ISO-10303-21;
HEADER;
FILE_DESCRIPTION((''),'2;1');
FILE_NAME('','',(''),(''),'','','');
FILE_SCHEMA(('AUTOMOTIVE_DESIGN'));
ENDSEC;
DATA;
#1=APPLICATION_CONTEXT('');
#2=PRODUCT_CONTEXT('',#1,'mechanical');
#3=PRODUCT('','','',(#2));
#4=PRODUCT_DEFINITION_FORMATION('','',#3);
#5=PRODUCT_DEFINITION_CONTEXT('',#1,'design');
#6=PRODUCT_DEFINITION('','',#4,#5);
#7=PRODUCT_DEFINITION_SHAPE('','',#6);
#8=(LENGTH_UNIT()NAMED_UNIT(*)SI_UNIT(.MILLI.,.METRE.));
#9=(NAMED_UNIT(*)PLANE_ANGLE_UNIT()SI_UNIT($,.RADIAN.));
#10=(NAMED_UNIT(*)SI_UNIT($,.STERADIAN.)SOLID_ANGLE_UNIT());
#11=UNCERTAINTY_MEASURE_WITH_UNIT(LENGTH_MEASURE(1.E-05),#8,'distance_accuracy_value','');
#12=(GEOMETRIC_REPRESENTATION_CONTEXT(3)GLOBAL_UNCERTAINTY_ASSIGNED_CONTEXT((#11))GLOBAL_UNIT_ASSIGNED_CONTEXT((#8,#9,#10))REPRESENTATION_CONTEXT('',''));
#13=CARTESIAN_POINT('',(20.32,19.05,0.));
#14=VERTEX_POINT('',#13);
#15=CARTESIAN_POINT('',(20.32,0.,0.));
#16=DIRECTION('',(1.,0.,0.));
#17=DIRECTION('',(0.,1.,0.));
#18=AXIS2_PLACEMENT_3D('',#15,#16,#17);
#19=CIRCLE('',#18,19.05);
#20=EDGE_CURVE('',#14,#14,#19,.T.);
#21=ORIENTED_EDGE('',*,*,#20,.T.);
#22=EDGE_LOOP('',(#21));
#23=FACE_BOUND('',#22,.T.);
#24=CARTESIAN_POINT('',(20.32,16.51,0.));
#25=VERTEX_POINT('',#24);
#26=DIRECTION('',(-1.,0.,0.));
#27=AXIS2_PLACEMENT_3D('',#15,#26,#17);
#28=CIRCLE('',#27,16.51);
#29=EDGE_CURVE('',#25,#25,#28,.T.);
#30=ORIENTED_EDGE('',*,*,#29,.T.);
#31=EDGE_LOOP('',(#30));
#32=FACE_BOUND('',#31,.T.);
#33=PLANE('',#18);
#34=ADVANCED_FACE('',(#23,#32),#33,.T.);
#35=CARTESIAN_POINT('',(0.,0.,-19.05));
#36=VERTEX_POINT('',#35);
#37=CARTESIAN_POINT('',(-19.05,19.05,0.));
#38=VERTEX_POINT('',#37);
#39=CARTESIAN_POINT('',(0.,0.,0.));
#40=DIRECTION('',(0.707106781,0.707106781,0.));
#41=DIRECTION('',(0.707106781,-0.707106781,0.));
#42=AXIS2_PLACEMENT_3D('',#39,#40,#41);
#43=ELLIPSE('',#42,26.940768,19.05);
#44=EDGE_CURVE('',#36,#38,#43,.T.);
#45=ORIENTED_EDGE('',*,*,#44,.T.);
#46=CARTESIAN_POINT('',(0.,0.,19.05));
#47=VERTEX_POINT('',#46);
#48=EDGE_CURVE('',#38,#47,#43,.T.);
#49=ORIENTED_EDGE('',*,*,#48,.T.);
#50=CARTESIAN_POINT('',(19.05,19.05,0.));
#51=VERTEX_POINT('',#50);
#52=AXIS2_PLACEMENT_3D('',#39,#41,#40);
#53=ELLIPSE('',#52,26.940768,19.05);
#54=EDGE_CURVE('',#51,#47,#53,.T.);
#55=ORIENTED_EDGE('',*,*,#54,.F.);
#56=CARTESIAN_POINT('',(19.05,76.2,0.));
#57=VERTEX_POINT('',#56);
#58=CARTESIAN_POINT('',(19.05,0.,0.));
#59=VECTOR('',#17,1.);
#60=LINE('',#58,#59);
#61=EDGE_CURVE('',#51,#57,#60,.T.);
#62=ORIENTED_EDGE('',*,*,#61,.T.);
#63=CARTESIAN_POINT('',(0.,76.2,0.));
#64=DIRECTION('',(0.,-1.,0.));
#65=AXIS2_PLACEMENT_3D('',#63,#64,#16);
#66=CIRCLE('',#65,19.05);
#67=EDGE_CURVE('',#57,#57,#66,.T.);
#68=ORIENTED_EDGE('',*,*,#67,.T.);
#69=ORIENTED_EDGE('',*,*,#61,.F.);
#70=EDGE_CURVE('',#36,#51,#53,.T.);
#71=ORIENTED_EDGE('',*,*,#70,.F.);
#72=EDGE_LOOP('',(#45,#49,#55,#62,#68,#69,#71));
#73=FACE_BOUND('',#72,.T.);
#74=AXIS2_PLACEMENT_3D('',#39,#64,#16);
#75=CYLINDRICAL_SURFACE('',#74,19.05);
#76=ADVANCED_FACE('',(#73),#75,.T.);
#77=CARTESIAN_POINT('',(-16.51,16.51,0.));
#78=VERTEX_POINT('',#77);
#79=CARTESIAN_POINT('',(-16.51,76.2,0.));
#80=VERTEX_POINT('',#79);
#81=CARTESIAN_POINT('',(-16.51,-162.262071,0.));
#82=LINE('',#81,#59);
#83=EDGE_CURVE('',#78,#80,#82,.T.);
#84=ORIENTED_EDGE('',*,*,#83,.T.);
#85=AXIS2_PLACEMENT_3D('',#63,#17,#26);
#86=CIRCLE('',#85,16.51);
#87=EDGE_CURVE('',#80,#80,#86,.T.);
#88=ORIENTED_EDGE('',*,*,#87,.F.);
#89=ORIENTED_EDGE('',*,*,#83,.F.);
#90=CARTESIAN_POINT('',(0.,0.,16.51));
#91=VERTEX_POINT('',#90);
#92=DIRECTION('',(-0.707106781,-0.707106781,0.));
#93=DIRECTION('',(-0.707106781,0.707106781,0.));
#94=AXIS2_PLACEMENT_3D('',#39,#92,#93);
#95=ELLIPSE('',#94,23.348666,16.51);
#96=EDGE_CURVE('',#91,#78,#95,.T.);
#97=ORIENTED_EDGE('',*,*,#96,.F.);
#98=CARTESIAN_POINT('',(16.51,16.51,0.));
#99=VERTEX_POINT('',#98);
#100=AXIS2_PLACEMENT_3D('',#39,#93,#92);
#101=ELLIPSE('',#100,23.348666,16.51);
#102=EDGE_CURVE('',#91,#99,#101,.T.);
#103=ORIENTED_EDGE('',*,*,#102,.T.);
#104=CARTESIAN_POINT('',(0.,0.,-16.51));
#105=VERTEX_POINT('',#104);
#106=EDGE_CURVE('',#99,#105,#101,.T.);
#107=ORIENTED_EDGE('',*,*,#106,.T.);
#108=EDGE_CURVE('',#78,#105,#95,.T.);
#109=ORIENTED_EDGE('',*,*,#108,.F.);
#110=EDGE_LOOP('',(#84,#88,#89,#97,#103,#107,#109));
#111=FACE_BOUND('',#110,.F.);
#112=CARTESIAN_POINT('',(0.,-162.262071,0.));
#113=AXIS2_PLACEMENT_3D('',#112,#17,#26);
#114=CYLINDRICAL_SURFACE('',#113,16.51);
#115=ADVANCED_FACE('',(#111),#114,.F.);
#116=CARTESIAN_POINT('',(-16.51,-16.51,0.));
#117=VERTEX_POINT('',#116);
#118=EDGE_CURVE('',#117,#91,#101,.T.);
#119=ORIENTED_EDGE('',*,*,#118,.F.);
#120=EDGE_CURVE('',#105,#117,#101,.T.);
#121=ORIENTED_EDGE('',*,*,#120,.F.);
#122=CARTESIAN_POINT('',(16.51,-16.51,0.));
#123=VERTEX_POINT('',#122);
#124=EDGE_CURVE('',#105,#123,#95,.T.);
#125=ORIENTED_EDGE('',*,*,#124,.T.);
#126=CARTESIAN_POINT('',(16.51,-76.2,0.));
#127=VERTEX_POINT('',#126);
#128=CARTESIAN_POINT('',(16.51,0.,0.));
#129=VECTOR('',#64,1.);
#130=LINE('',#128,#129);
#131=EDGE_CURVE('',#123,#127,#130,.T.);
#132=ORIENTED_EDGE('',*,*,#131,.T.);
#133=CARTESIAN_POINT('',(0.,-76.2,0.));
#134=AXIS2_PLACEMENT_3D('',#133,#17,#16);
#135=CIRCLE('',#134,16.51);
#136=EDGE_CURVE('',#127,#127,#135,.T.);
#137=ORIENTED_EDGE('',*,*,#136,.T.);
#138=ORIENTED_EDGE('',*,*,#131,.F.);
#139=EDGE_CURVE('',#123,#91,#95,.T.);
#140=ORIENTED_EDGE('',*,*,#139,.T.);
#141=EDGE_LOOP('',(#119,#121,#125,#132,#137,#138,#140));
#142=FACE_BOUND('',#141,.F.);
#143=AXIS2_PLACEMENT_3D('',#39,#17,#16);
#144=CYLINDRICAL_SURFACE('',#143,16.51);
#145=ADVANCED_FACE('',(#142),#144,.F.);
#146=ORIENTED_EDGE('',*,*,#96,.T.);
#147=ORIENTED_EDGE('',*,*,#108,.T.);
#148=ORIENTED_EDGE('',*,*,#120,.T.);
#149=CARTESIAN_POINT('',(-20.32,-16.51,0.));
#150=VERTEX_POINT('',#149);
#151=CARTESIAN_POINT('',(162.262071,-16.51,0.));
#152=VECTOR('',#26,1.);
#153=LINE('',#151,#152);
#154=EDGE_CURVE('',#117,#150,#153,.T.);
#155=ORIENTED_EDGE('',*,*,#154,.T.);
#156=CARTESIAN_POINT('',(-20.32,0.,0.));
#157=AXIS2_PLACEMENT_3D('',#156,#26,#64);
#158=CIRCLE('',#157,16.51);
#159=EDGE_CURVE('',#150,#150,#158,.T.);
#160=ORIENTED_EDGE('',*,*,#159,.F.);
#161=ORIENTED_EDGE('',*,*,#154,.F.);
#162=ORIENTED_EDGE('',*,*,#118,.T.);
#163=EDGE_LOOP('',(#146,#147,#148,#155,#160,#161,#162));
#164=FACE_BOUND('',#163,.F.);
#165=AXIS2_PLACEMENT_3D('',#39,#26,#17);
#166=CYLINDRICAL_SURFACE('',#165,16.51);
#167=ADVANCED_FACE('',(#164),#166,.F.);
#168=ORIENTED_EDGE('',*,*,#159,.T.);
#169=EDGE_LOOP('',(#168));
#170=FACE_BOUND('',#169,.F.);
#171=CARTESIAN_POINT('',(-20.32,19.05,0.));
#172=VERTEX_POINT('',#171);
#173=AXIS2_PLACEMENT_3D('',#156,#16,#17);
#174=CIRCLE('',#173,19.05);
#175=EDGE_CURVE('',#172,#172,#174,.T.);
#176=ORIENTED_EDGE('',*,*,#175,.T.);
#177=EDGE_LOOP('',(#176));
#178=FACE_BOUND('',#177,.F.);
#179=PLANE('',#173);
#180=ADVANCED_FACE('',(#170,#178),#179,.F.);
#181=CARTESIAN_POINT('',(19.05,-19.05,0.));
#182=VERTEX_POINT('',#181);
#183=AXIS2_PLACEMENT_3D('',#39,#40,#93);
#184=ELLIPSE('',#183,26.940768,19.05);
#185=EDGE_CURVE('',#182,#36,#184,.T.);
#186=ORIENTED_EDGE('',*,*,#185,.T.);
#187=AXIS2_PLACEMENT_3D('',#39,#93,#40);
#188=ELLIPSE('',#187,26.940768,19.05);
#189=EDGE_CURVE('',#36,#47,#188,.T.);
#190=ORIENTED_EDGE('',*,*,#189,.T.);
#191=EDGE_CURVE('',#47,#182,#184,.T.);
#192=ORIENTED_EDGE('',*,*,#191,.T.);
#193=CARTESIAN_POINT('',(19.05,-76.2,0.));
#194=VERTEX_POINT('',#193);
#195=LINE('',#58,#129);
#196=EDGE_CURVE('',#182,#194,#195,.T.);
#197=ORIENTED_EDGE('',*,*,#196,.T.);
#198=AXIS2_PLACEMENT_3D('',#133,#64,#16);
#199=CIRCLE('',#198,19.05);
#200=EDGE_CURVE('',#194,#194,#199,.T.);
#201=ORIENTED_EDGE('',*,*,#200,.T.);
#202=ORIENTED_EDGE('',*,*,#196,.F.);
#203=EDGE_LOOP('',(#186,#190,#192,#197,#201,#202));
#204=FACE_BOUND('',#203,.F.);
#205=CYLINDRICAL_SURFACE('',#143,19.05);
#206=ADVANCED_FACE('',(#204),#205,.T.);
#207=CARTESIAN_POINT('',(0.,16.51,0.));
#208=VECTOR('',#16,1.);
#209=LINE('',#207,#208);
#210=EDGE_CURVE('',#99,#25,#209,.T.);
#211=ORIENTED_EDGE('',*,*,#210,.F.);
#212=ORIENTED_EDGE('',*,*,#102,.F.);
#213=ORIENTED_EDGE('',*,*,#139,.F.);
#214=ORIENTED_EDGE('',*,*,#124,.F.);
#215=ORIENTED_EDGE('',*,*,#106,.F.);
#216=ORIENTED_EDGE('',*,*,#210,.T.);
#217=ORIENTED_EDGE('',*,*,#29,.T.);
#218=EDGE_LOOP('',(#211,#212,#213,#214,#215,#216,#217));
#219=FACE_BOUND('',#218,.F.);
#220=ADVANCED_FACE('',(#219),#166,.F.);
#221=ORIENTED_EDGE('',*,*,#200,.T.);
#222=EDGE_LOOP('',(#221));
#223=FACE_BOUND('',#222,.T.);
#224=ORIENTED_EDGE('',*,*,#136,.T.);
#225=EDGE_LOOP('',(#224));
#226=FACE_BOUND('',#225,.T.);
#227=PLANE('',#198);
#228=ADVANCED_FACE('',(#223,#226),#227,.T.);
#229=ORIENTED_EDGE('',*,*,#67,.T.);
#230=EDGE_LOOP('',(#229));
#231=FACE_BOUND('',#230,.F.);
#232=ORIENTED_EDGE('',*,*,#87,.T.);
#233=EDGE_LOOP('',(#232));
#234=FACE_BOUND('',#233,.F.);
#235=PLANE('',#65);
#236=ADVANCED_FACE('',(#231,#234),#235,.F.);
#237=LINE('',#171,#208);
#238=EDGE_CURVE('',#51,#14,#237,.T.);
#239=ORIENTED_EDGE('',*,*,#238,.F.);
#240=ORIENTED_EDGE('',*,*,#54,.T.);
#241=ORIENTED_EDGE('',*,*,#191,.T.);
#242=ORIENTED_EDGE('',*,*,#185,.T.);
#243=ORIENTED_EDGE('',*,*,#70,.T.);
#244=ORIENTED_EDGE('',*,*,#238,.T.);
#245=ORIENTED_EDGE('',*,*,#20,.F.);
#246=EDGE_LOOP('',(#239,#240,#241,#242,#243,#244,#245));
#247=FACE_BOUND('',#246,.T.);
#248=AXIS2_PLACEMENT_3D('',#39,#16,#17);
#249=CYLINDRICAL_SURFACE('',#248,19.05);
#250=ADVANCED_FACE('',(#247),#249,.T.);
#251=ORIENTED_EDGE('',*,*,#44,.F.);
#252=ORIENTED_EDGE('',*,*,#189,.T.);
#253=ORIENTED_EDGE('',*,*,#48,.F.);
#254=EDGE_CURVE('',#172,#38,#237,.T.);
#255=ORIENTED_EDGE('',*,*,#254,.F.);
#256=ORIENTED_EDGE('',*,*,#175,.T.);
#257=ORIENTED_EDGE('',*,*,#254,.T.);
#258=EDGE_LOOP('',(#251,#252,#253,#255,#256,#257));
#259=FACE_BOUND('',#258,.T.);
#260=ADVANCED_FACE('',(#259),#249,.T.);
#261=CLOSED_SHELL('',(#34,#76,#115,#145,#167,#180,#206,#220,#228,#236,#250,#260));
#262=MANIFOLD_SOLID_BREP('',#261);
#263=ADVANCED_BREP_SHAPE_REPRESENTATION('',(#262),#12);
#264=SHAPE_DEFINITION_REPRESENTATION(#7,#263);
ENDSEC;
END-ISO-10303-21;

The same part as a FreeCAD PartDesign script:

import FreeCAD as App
import Part
import Sketcher
Q = App.Units.Quantity

doc = App.newDocument("Part")
body = doc.addObject("PartDesign::Body", "Body")

sketch1 = body.newObject("Sketcher::SketchObject", "Sketch")
sketch1.AttachmentSupport = (doc.getObject("XZ_Plane"), [""])
sketch1.MapMode = "FlatFace"
sketch1.addGeometry(Part.Circle(App.Vector(0, 0, 0), App.Vector(0, 0, 1), 19), False)
sketch1.addConstraint(Sketcher.Constraint("Coincident", 0, 3, -1, 1))
sketch1.addConstraint(Sketcher.Constraint("Diameter", 0, Q("1.5 in")))
pad1 = body.newObject("PartDesign::Pad", "Pad")
pad1.Profile = sketch1
pad1.Length = Q("3 in")

sketch2 = body.newObject("Sketcher::SketchObject", "Sketch001")
sketch2.AttachmentSupport = (doc.getObject("YZ_Plane"), [""])
sketch2.MapMode = "FlatFace"
sketch2.addGeometry(Part.Circle(App.Vector(0, 0, 0), App.Vector(0, 0, 1), 19), False)
sketch2.addConstraint(Sketcher.Constraint("Coincident", 0, 3, -1, 1))
sketch2.addConstraint(Sketcher.Constraint("Diameter", 0, Q("1.5 in")))
pad2 = body.newObject("PartDesign::Pad", "Pad001")
pad2.Profile = sketch2
pad2.Length = Q("1.6 in")
pad2.Midplane = True

sketch3 = body.newObject("Sketcher::SketchObject", "Sketch002")
sketch3.AttachmentSupport = (doc.getObject("XZ_Plane"), [""])
sketch3.MapMode = "FlatFace"
sketch3.addGeometry(Part.Circle(App.Vector(0, 0, 0), App.Vector(0, 0, 1), 19), False)
sketch3.addConstraint(Sketcher.Constraint("Coincident", 0, 3, -1, 1))
sketch3.addConstraint(Sketcher.Constraint("Diameter", 0, Q("1.5 in")))
pad3 = body.newObject("PartDesign::Pad", "Pad002")
pad3.Profile = sketch3
pad3.Length = Q("3 in")
pad3.Reversed = True

sketch4 = body.newObject("Sketcher::SketchObject", "Sketch003")
sketch4.AttachmentSupport = (doc.getObject("YZ_Plane"), [""])
sketch4.MapMode = "FlatFace"
sketch4.addGeometry(Part.Circle(App.Vector(0, 0, 0), App.Vector(0, 0, 1), 17), False)
sketch4.addConstraint(Sketcher.Constraint("Coincident", 0, 3, -1, 1))
sketch4.addConstraint(Sketcher.Constraint("Diameter", 0, Q("1.3 in")))
pocket1 = body.newObject("PartDesign::Pocket", "Pocket")
pocket1.Profile = sketch4
pocket1.Type = "ThroughAll"
pocket1.Reversed = True

sketch5 = body.newObject("Sketcher::SketchObject", "Sketch004")
sketch5.AttachmentSupport = (doc.getObject("YZ_Plane"), [""])
sketch5.MapMode = "FlatFace"
sketch5.addGeometry(Part.Circle(App.Vector(0, 0, 0), App.Vector(0, 0, 1), 17), False)
sketch5.addConstraint(Sketcher.Constraint("Coincident", 0, 3, -1, 1))
sketch5.addConstraint(Sketcher.Constraint("Diameter", 0, Q("1.3 in")))
doc.recompute()
hole = body.newObject("PartDesign::Hole", "Hole")
hole.Profile = sketch5
hole.ThreadType = "None"
hole.Diameter = Q("1.3 in")
hole.DepthType = "ThroughAll"

sketch6 = body.newObject("Sketcher::SketchObject", "Sketch005")
sketch6.AttachmentSupport = (doc.getObject("XZ_Plane"), [""])
sketch6.MapMode = "FlatFace"
sketch6.addGeometry(Part.Circle(App.Vector(0, 0, 0), App.Vector(0, 0, 1), 17), False)
sketch6.addConstraint(Sketcher.Constraint("Coincident", 0, 3, -1, 1))
sketch6.addConstraint(Sketcher.Constraint("Diameter", 0, Q("1.3 in")))
pocket2 = body.newObject("PartDesign::Pocket", "Pocket001")
pocket2.Profile = sketch6
pocket2.Type = "ThroughAll"
pocket2.Reversed = True

sketch7 = body.newObject("Sketcher::SketchObject", "Sketch006")
sketch7.AttachmentSupport = (doc.getObject("XZ_Plane"), [""])
sketch7.MapMode = "FlatFace"
sketch7.addGeometry(Part.Circle(App.Vector(0, 0, 0), App.Vector(0, 0, 1), 17), False)
sketch7.addConstraint(Sketcher.Constraint("Coincident", 0, 3, -1, 1))
sketch7.addConstraint(Sketcher.Constraint("Diameter", 0, Q("1.3 in")))
doc.recompute()
hole2 = body.newObject("PartDesign::Hole", "Hole001")
hole2.Profile = sketch7
hole2.ThreadType = "None"
hole2.Diameter = Q("1.3 in")
hole2.DepthType = "ThroughAll"

doc.recompute()
